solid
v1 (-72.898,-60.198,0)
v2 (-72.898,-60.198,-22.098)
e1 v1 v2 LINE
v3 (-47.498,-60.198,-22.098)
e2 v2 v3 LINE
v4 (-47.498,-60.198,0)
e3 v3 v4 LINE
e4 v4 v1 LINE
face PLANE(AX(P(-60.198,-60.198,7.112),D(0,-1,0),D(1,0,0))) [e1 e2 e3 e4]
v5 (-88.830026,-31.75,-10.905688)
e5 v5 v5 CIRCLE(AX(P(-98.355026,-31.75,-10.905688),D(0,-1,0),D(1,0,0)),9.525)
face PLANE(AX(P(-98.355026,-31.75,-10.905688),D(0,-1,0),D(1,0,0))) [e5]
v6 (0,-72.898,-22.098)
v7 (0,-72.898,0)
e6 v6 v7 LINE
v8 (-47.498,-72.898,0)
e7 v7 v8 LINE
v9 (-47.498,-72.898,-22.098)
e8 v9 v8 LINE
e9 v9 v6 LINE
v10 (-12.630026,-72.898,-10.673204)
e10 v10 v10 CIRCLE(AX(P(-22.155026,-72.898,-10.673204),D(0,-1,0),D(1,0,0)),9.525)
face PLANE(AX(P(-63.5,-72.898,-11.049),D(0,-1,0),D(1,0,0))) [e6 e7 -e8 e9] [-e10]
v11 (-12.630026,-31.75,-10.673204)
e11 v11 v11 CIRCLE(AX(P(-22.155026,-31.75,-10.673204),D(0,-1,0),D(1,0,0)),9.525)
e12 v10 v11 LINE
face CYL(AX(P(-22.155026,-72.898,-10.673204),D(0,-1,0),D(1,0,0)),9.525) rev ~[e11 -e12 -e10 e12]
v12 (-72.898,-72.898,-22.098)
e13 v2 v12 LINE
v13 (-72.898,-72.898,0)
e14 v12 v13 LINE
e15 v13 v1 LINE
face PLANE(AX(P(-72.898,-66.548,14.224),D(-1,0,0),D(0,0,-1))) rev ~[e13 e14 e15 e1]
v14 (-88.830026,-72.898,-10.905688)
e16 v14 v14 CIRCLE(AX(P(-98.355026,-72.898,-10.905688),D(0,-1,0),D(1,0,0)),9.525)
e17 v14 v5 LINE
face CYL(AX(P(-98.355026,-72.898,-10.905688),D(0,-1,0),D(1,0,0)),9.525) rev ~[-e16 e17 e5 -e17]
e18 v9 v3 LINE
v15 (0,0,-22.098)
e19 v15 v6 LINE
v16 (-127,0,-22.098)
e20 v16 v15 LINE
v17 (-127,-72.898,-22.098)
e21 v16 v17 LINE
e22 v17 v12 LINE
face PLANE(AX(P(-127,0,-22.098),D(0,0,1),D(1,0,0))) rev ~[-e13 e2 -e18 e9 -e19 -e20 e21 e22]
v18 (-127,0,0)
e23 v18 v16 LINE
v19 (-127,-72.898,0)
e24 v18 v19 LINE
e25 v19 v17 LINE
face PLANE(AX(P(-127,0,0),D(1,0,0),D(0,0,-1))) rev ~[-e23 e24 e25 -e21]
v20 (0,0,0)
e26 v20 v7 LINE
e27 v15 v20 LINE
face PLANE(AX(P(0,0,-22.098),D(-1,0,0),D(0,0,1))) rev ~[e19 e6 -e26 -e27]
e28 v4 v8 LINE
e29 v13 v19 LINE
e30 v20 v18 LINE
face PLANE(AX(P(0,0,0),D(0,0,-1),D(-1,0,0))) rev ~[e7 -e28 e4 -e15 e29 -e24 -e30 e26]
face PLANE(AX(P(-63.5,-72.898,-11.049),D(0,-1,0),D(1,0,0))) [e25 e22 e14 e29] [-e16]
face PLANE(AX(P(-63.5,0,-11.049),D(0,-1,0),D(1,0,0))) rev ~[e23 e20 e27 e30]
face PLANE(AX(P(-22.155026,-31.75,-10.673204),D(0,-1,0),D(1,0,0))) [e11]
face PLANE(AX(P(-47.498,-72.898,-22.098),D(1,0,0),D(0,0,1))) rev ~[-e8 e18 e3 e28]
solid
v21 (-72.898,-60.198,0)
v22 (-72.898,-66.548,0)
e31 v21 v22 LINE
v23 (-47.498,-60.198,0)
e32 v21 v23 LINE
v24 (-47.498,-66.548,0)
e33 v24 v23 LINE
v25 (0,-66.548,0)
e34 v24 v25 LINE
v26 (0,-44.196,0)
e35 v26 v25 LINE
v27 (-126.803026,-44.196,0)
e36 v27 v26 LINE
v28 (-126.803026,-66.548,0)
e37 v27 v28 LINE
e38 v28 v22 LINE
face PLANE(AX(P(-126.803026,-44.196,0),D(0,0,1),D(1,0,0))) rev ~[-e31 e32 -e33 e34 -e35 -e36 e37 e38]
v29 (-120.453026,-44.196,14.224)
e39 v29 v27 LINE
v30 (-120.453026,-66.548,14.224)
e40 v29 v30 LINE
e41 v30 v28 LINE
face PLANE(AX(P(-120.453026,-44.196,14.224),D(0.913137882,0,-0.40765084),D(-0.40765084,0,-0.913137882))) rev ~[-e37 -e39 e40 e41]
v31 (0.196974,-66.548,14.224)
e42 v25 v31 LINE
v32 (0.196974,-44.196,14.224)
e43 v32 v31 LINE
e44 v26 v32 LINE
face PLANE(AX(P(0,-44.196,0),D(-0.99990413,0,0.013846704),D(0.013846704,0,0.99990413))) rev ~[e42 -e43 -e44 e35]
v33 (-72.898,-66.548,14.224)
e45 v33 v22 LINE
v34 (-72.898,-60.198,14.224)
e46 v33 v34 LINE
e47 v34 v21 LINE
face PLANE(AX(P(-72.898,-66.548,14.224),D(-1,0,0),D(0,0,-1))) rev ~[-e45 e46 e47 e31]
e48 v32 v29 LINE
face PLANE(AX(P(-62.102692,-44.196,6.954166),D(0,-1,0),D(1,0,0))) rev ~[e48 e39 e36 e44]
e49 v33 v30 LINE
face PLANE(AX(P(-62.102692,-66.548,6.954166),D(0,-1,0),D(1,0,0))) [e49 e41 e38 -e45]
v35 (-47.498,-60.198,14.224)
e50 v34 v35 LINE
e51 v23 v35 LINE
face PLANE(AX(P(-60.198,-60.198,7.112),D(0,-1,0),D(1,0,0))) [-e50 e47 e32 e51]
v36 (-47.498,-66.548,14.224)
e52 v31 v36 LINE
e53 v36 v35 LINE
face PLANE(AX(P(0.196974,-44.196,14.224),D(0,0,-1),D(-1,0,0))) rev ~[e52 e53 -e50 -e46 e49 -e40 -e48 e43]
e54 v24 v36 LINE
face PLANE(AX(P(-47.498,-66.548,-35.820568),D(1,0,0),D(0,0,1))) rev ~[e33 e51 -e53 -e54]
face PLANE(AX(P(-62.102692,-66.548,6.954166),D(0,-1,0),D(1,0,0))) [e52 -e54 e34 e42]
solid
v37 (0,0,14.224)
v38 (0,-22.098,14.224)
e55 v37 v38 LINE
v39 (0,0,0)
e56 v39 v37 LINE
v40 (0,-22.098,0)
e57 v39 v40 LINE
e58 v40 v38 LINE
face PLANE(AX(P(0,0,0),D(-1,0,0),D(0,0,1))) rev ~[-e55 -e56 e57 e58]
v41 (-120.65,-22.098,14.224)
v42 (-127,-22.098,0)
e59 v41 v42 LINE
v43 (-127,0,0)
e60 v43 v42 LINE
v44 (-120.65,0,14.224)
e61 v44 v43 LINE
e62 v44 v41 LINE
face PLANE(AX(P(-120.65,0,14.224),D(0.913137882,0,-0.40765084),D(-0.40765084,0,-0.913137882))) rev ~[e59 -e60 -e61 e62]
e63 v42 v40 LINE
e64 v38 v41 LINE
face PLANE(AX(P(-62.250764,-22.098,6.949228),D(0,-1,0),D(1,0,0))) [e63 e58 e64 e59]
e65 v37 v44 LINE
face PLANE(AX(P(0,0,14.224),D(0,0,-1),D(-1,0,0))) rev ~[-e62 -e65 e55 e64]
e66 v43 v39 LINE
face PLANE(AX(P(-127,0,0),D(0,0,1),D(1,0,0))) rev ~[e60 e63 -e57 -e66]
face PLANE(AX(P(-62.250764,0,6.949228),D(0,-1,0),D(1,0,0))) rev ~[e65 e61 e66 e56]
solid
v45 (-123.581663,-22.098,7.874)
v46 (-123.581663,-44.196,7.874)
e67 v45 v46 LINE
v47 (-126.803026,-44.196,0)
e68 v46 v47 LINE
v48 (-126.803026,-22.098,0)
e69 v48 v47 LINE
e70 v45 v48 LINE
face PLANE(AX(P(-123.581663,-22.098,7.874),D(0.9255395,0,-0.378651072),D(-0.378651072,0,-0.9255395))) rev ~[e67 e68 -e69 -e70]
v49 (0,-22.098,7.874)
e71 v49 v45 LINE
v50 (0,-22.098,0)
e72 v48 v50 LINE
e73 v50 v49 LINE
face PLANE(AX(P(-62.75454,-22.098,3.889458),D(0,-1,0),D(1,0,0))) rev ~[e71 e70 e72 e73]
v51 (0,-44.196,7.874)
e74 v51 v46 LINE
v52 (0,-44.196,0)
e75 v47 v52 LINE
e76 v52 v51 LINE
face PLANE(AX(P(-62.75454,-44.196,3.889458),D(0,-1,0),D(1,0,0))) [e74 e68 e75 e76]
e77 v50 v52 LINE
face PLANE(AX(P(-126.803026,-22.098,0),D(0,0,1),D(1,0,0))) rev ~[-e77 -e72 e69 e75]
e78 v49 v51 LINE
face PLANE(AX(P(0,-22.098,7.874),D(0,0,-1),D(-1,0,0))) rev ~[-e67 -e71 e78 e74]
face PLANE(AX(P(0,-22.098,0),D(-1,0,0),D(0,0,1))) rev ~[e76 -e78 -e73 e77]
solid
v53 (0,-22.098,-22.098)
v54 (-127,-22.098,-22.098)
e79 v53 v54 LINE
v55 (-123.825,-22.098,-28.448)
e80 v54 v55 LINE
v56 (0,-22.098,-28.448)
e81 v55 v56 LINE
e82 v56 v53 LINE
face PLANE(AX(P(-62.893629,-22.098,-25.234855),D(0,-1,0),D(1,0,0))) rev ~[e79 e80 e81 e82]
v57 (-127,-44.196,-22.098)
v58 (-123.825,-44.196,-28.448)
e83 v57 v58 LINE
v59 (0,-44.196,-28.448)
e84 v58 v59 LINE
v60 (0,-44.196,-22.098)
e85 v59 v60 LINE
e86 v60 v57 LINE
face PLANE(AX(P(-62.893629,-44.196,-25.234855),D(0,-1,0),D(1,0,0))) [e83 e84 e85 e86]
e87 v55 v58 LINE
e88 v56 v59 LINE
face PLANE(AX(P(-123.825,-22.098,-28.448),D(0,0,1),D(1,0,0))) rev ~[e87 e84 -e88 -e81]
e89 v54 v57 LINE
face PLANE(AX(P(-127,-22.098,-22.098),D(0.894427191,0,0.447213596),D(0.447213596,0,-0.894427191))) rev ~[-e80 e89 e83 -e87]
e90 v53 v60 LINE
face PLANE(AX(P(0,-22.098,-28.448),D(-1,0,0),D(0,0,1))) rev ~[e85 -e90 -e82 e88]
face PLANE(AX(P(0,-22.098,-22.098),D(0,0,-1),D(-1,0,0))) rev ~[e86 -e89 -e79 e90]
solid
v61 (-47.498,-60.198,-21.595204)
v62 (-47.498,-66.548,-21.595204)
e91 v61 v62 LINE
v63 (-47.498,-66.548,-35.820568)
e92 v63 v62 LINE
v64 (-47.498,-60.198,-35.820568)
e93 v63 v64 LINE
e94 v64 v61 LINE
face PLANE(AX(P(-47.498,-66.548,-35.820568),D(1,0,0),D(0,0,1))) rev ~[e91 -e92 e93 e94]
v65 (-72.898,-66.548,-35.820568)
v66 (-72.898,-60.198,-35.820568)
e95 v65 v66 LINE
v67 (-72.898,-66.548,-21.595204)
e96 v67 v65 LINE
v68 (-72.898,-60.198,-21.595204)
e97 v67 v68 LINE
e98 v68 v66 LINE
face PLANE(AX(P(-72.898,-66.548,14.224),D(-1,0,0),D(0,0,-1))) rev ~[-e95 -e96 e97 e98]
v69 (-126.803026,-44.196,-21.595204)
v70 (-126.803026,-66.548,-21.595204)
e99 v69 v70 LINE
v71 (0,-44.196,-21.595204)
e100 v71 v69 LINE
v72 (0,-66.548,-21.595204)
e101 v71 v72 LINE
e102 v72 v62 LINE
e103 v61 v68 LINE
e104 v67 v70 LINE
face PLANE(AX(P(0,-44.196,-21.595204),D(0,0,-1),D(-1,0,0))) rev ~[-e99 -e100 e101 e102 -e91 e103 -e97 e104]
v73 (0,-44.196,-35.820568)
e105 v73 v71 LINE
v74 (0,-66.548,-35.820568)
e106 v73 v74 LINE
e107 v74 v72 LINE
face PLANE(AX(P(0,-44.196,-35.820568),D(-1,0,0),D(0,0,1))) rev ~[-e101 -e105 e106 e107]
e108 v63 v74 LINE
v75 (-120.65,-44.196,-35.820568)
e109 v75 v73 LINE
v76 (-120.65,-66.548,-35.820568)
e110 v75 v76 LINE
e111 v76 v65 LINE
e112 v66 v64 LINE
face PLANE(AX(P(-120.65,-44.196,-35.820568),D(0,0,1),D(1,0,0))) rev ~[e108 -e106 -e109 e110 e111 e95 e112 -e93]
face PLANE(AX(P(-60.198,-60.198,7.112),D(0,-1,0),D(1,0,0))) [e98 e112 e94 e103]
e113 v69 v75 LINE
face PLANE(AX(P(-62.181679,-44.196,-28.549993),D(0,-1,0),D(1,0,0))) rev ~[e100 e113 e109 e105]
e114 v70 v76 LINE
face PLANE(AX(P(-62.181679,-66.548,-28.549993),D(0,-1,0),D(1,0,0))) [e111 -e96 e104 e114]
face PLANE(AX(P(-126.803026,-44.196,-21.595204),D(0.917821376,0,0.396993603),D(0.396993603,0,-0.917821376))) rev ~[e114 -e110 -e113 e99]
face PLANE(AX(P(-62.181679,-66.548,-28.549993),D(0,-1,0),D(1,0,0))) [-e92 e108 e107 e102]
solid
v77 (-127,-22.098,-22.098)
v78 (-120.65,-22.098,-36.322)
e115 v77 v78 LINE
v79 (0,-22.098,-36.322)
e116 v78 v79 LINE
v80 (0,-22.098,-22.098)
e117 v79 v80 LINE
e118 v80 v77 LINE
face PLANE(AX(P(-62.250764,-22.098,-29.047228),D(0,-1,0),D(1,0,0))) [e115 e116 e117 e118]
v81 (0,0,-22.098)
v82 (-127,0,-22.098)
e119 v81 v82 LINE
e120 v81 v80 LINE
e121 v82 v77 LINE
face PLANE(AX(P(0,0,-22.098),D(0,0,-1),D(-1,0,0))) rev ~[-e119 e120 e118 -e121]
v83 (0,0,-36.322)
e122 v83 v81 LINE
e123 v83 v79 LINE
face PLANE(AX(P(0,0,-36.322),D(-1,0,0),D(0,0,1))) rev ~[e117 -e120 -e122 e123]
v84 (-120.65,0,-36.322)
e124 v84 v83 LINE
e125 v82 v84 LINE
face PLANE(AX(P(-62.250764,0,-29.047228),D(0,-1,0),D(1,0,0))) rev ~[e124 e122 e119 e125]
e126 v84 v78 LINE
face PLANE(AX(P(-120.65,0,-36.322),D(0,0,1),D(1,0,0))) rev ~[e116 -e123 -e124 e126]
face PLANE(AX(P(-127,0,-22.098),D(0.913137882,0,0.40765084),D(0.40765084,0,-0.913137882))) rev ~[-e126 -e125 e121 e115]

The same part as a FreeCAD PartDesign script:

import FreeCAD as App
import Part
import Sketcher
Q = App.Units.Quantity


def add_polygon(sketch, points):
    """Adds a closed chain of lines whose ends are joined by coincident constraints."""
    first, n = sketch.GeometryCount, len(points)
    for a, b in zip(points, points[1:] + points[:1]):
        sketch.addGeometry(Part.LineSegment(App.Vector(*a, 0), App.Vector(*b, 0)), False)
    for i in range(n):
        sketch.addConstraint(Sketcher.Constraint("Coincident", first + i, 2, first + (i + 1) % n, 1))

doc = App.newDocument("Part")
body = doc.addObject("PartDesign::Body", "Body")

# Sketch on XZ plane
sketch1 = body.newObject("Sketcher::SketchObject", "Sketch")
sketch1.AttachmentSupport = (doc.getObject("XZ_Plane"), [""])
sketch1.MapMode = "FlatFace"
add_polygon(sketch1, [(0, 0), (0, 14), (-121, 14), (-127, 0)])  # lines 0-3
sketch1.addConstraint([
    Sketcher.Constraint("Vertical", 0),
    Sketcher.Constraint("Horizontal", 1),
    Sketcher.Constraint("Horizontal", 3),
    Sketcher.Constraint("Coincident", 3, 2, -1, 1),
    Sketcher.Constraint("DistanceX", 3, 1, 3, 2, Q("5 in")),
    Sketcher.Constraint("DistanceX", 1, 2, 1, 1, Q("4.75 in")),
    Sketcher.Constraint("DistanceY", 0, 1, 0, 2, Q("0.56 in")),
])
pad1 = body.newObject("PartDesign::Pad", "Pad")
pad1.Profile = sketch1
pad1.Length = Q("0.87 in")
body2 = doc.addObject("PartDesign::Body", "Body001")

# Sketch on XZ plane
sketch2 = body2.newObject("Sketcher::SketchObject", "Sketch001")
sketch2.AttachmentSupport = (doc.getObject("XZ_Plane001"), [""])
sketch2.MapMode = "FlatFace"
add_polygon(sketch2, [(0, -36), (0, -22), (-127, -22), (-121, -36)])  # lines 0-3
sketch2.addConstraint([
    Sketcher.Constraint("Vertical", 0),
    Sketcher.Constraint("Horizontal", 1),
    Sketcher.Constraint("Horizontal", 3),
    Sketcher.Constraint("PointOnObject", 0, 2, -2),
    Sketcher.Constraint("DistanceX", 1, 2, 1, 1, Q("5 in")),
    Sketcher.Constraint("DistanceX", 3, 1, 3, 2, Q("4.75 in")),
    Sketcher.Constraint("DistanceY", 0, 1, 0, 2, Q("0.56 in")),
    Sketcher.Constraint("DistanceY", 0, 2, -1, 1, Q("0.87 in")),
])
pad2 = body2.newObject("PartDesign::Pad", "Pad001")
pad2.Profile = sketch2
pad2.Length = Q("0.87 in")
body3 = doc.addObject("PartDesign::Body", "Body002")

# Sketch on XZ plane
sketch3 = body3.newObject("Sketcher::SketchObject", "Sketch002")
sketch3.AttachmentSupport = (doc.getObject("XZ_Plane002"), [""])
sketch3.MapMode = "FlatFace"
sketch3.AttachmentOffset = App.Placement(App.Vector(0, 0, 0.87 * 25.4), App.Rotation())
add_polygon(sketch3, [(-127, -22), (-124, -28), (0, -28), (0, -22)])  # lines 0-3
sketch3.addConstraint([
    Sketcher.Constraint("Horizontal", 1),
    Sketcher.Constraint("Vertical", 2),
    Sketcher.Constraint("Horizontal", 3),
    Sketcher.Constraint("PointOnObject", 1, 2, -2),
    Sketcher.Constraint("DistanceX", 3, 2, 3, 1, Q("5 in")),
    Sketcher.Constraint("DistanceY", 2, 1, 2, 2, Q("0.25 in")),
    Sketcher.Constraint("DistanceX", 1, 1, 1, 2, Q("4.875 in")),
    Sketcher.Constraint("DistanceY", 0, 2, -1, 1, Q("1.12 in")),
])
pad3 = body3.newObject("PartDesign::Pad", "Pad002")
pad3.Profile = sketch3
pad3.Length = Q("0.87 in")
body4 = doc.addObject("PartDesign::Body", "Body003")

# Sketch on XZ plane
sketch4 = body4.newObject("Sketcher::SketchObject", "Sketch003")
sketch4.AttachmentSupport = (doc.getObject("XZ_Plane003"), [""])
sketch4.MapMode = "FlatFace"
sketch4.AttachmentOffset = App.Placement(App.Vector(0, 0, 0.87 * 25.4), App.Rotation())
add_polygon(sketch4, [(0, 0), (0, 8), (-124, 8), (-127, 0)])  # lines 0-3
sketch4.addConstraint([
    Sketcher.Constraint("Vertical", 0),
    Sketcher.Constraint("Horizontal", 1),
    Sketcher.Constraint("Horizontal", 3),
    Sketcher.Constraint("Coincident", 3, 2, -1, 1),
    Sketcher.Constraint("DistanceY", 0, 1, 0, 2, Q("0.31 in")),
    Sketcher.Constraint("Distance", 2, 8.507471),
    Sketcher.Constraint("DistanceX", 1, 2, 1, 1, 123.581663),
])
pad4 = body4.newObject("PartDesign::Pad", "Pad003")
pad4.Profile = sketch4
pad4.Length = Q("0.87 in")
body5 = doc.addObject("PartDesign::Body", "Body004")

# Sketch on XZ plane
sketch5 = body5.newObject("Sketcher::SketchObject", "Sketch004")
sketch5.AttachmentSupport = (doc.getObject("XZ_Plane004"), [""])
sketch5.MapMode = "FlatFace"
sketch5.AttachmentOffset = App.Placement(App.Vector(0, 0, 1.74 * 25.4), App.Rotation())
add_polygon(sketch5, [(-120, 14), (-127, 0), (0, 0), (0, 14)])  # lines 0-3
sketch5.addConstraint([
    Sketcher.Constraint("Horizontal", 1),
    Sketcher.Constraint("Horizontal", 3),
    Sketcher.Constraint("Coincident", 1, 2, -1, 1),
    Sketcher.Constraint("DistanceX", 0, 2, 2, 2, Q("5 in")),
    Sketcher.Constraint("DistanceX", 3, 2, 3, 1, Q("4.75 in")),
    Sketcher.Constraint("DistanceY", -1, 1, 2, 2, Q("0.56 in")),
    Sketcher.Constraint("DistanceX", 1, 1, 1, 2, 126.803026),
])
pad5 = body5.newObject("PartDesign::Pad", "Pad004")
pad5.Profile = sketch5
pad5.Length = Q("0.88 in")
body6 = doc.addObject("PartDesign::Body", "Body005")

# Sketch on XZ plane
sketch6 = body6.newObject("Sketcher::SketchObject", "Sketch005")
sketch6.AttachmentSupport = (doc.getObject("XZ_Plane005"), [""])
sketch6.MapMode = "FlatFace"
sketch6.AttachmentOffset = App.Placement(App.Vector(0, 0, 1.74 * 25.4), App.Rotation())
add_polygon(sketch6, [(0, -22), (-127, -22), (-121, -36), (0, -36)])  # lines 0-3
sketch6.addConstraint([
    Sketcher.Constraint("Horizontal", 0),
    Sketcher.Constraint("Horizontal", 2),
    Sketcher.Constraint("Vertical", 3),
    Sketcher.Constraint("PointOnObject", 2, 2, -2),
    Sketcher.Constraint("DistanceX", 2, 1, 2, 2, Q("4.75 in")),
    Sketcher.Constraint("DistanceX", 0, 2, 0, 1, 126.803026),
    Sketcher.Constraint("DistanceY", 3, 1, 3, 2, 14.225364),
    Sketcher.Constraint("DistanceY", 1, 2, -1, 1, 35.820568),
])
pad6 = body6.newObject("PartDesign::Pad", "Pad005")
pad6.Profile = sketch6
pad6.Length = Q("0.88 in")
body7 = doc.addObject("PartDesign::Body", "Body006")

# Sketch on XZ plane
sketch7 = body7.newObject("Sketcher::SketchObject", "Sketch006")
sketch7.AttachmentSupport = (doc.getObject("XZ_Plane006"), [""])
sketch7.MapMode = "FlatFace"
add_polygon(sketch7, [(0, -22), (0, 0), (-127, 0), (-127, -22)])  # lines 0-3
sketch7.addConstraint([
    Sketcher.Constraint("Vertical", 0),
    Sketcher.Constraint("Horizontal", 1),
    Sketcher.Constraint("Vertical", 2),
    Sketcher.Constraint("Horizontal", 3),
    Sketcher.Constraint("Coincident", 0, 2, -1, 1),
    Sketcher.Constraint("DistanceX", 1, 2, 1, 1, Q("5 in")),
    Sketcher.Constraint("DistanceY", 0, 1, 0, 2, Q("0.87 in")),
])
pad7 = body7.newObject("PartDesign::Pad", "Pad006")
pad7.Profile = sketch7
pad7.Length = Q("2.87 in")
body8 = doc.addObject("PartDesign::Body", "Body007")

# Sketch on XZ plane
sketch8 = body8.newObject("Sketcher::SketchObject", "Sketch007")
sketch8.AttachmentSupport = (doc.getObject("XZ_Plane007"), [""])
sketch8.MapMode = "FlatFace"
sketch8.AttachmentOffset = App.Placement(App.Vector(0, 0, 2.62 * 25.4), App.Rotation())
add_polygon(sketch8, [(-73, 14), (-73, -36), (-47, -36), (-47, 14)])  # lines 0-3
sketch8.addConstraint([
    Sketcher.Constraint("Vertical", 0),
    Sketcher.Constraint("Horizontal", 1),
    Sketcher.Constraint("Vertical", 2),
    Sketcher.Constraint("Horizontal", 3),
    Sketcher.Constraint("DistanceX", 1, 1, 1, 2, Q("1 in")),
    Sketcher.Constraint("DistanceX", 0, 2, -1, 1, Q("2.87 in")),
    Sketcher.Constraint("DistanceY", -1, 1, 2, 2, Q("0.56 in")),
    Sketcher.Constraint("DistanceY", 0, 2, 0, 1, 50.044568),
])
pad8 = body8.newObject("PartDesign::Pad", "Pad007")
pad8.Profile = sketch8
pad8.Length = Q("0.25 in")
pad8.Reversed = True
doc.recompute()

body9 = doc.addObject("PartDesign::Body", "Body008")
body9.BaseFeature = body8
boolean = body5.newObject("PartDesign::Boolean", "Boolean")
boolean.Type = "Cut"
boolean.addObjects([body9])
doc.recompute()

body10 = doc.addObject("PartDesign::Body", "Body009")
body10.BaseFeature = body8
boolean2 = body6.newObject("PartDesign::Boolean", "Boolean001")
boolean2.Type = "Cut"
boolean2.addObjects([body10])
doc.recompute()

boolean3 = body7.newObject("PartDesign::Boolean", "Boolean002")
boolean3.Type = "Cut"
boolean3.addObjects([body8])

# Sketch on XZ plane
sketch9 = body7.newObject("Sketcher::SketchObject", "Sketch008")
sketch9.AttachmentSupport = (doc.getObject("XZ_Plane006"), [""])
sketch9.MapMode = "FlatFace"
sketch9.AttachmentOffset = App.Placement(App.Vector(0, 0, 2.87 * 25.4), App.Rotation())
add_polygon(sketch9, [(-73, 0), (-73, -22), (-47, -22), (-47, 0)])  # lines 0-3
sketch9.addConstraint([
    Sketcher.Constraint("Vertical", 0),
    Sketcher.Constraint("Horizontal", 1),
    Sketcher.Constraint("Vertical", 2),
    Sketcher.Constraint("Horizontal", 3),
    Sketcher.Constraint("PointOnObject", 2, 2, -1),
    Sketcher.Constraint("DistanceX", 1, 1, 1, 2, Q("1 in")),
    Sketcher.Constraint("DistanceY", 0, 2, 0, 1, Q("0.87 in")),
    Sketcher.Constraint("DistanceX", 0, 2, -1, 1, Q("2.87 in")),
])
pocket1 = body7.newObject("PartDesign::Pocket", "Pocket")
pocket1.Profile = sketch9
pocket1.Length = Q("0.25 in")

# Sketch on XZ plane
sketch10 = body7.newObject("Sketcher::SketchObject", "Sketch009")
sketch10.AttachmentSupport = (doc.getObject("XZ_Plane006"), [""])
sketch10.MapMode = "FlatFace"
sketch10.AttachmentOffset = App.Placement(App.Vector(0, 0, 2.87 * 25.4), App.Rotation())
sketch10.addGeometry([
    Part.Circle(App.Vector(-98, -11, 0), App.Vector(0, 0, 1), 10),
    Part.Circle(App.Vector(-22, -11, 0), App.Vector(0, 0, 1), 10),
], False)
sketch10.addConstraint([
    Sketcher.Constraint("Equal", 0, 1),
    Sketcher.Constraint("Diameter", 0, Q("0.75 in")),
    Sketcher.Constraint("DistanceX", 0, 3, 1, 3, Q("3 in")),
    Sketcher.Constraint("DistanceY", 0, 3, -1, 1, 10.905688),
    Sketcher.Constraint("DistanceX", 0, 3, -1, 1, 98.355026),
    Sketcher.Constraint("DistanceY", 1, 3, -1, 1, 10.673204),
])
pocket2 = body7.newObject("PartDesign::Pocket", "Pocket001")
pocket2.Profile = sketch10
pocket2.Length = Q("1.62 in")

doc.recompute()
